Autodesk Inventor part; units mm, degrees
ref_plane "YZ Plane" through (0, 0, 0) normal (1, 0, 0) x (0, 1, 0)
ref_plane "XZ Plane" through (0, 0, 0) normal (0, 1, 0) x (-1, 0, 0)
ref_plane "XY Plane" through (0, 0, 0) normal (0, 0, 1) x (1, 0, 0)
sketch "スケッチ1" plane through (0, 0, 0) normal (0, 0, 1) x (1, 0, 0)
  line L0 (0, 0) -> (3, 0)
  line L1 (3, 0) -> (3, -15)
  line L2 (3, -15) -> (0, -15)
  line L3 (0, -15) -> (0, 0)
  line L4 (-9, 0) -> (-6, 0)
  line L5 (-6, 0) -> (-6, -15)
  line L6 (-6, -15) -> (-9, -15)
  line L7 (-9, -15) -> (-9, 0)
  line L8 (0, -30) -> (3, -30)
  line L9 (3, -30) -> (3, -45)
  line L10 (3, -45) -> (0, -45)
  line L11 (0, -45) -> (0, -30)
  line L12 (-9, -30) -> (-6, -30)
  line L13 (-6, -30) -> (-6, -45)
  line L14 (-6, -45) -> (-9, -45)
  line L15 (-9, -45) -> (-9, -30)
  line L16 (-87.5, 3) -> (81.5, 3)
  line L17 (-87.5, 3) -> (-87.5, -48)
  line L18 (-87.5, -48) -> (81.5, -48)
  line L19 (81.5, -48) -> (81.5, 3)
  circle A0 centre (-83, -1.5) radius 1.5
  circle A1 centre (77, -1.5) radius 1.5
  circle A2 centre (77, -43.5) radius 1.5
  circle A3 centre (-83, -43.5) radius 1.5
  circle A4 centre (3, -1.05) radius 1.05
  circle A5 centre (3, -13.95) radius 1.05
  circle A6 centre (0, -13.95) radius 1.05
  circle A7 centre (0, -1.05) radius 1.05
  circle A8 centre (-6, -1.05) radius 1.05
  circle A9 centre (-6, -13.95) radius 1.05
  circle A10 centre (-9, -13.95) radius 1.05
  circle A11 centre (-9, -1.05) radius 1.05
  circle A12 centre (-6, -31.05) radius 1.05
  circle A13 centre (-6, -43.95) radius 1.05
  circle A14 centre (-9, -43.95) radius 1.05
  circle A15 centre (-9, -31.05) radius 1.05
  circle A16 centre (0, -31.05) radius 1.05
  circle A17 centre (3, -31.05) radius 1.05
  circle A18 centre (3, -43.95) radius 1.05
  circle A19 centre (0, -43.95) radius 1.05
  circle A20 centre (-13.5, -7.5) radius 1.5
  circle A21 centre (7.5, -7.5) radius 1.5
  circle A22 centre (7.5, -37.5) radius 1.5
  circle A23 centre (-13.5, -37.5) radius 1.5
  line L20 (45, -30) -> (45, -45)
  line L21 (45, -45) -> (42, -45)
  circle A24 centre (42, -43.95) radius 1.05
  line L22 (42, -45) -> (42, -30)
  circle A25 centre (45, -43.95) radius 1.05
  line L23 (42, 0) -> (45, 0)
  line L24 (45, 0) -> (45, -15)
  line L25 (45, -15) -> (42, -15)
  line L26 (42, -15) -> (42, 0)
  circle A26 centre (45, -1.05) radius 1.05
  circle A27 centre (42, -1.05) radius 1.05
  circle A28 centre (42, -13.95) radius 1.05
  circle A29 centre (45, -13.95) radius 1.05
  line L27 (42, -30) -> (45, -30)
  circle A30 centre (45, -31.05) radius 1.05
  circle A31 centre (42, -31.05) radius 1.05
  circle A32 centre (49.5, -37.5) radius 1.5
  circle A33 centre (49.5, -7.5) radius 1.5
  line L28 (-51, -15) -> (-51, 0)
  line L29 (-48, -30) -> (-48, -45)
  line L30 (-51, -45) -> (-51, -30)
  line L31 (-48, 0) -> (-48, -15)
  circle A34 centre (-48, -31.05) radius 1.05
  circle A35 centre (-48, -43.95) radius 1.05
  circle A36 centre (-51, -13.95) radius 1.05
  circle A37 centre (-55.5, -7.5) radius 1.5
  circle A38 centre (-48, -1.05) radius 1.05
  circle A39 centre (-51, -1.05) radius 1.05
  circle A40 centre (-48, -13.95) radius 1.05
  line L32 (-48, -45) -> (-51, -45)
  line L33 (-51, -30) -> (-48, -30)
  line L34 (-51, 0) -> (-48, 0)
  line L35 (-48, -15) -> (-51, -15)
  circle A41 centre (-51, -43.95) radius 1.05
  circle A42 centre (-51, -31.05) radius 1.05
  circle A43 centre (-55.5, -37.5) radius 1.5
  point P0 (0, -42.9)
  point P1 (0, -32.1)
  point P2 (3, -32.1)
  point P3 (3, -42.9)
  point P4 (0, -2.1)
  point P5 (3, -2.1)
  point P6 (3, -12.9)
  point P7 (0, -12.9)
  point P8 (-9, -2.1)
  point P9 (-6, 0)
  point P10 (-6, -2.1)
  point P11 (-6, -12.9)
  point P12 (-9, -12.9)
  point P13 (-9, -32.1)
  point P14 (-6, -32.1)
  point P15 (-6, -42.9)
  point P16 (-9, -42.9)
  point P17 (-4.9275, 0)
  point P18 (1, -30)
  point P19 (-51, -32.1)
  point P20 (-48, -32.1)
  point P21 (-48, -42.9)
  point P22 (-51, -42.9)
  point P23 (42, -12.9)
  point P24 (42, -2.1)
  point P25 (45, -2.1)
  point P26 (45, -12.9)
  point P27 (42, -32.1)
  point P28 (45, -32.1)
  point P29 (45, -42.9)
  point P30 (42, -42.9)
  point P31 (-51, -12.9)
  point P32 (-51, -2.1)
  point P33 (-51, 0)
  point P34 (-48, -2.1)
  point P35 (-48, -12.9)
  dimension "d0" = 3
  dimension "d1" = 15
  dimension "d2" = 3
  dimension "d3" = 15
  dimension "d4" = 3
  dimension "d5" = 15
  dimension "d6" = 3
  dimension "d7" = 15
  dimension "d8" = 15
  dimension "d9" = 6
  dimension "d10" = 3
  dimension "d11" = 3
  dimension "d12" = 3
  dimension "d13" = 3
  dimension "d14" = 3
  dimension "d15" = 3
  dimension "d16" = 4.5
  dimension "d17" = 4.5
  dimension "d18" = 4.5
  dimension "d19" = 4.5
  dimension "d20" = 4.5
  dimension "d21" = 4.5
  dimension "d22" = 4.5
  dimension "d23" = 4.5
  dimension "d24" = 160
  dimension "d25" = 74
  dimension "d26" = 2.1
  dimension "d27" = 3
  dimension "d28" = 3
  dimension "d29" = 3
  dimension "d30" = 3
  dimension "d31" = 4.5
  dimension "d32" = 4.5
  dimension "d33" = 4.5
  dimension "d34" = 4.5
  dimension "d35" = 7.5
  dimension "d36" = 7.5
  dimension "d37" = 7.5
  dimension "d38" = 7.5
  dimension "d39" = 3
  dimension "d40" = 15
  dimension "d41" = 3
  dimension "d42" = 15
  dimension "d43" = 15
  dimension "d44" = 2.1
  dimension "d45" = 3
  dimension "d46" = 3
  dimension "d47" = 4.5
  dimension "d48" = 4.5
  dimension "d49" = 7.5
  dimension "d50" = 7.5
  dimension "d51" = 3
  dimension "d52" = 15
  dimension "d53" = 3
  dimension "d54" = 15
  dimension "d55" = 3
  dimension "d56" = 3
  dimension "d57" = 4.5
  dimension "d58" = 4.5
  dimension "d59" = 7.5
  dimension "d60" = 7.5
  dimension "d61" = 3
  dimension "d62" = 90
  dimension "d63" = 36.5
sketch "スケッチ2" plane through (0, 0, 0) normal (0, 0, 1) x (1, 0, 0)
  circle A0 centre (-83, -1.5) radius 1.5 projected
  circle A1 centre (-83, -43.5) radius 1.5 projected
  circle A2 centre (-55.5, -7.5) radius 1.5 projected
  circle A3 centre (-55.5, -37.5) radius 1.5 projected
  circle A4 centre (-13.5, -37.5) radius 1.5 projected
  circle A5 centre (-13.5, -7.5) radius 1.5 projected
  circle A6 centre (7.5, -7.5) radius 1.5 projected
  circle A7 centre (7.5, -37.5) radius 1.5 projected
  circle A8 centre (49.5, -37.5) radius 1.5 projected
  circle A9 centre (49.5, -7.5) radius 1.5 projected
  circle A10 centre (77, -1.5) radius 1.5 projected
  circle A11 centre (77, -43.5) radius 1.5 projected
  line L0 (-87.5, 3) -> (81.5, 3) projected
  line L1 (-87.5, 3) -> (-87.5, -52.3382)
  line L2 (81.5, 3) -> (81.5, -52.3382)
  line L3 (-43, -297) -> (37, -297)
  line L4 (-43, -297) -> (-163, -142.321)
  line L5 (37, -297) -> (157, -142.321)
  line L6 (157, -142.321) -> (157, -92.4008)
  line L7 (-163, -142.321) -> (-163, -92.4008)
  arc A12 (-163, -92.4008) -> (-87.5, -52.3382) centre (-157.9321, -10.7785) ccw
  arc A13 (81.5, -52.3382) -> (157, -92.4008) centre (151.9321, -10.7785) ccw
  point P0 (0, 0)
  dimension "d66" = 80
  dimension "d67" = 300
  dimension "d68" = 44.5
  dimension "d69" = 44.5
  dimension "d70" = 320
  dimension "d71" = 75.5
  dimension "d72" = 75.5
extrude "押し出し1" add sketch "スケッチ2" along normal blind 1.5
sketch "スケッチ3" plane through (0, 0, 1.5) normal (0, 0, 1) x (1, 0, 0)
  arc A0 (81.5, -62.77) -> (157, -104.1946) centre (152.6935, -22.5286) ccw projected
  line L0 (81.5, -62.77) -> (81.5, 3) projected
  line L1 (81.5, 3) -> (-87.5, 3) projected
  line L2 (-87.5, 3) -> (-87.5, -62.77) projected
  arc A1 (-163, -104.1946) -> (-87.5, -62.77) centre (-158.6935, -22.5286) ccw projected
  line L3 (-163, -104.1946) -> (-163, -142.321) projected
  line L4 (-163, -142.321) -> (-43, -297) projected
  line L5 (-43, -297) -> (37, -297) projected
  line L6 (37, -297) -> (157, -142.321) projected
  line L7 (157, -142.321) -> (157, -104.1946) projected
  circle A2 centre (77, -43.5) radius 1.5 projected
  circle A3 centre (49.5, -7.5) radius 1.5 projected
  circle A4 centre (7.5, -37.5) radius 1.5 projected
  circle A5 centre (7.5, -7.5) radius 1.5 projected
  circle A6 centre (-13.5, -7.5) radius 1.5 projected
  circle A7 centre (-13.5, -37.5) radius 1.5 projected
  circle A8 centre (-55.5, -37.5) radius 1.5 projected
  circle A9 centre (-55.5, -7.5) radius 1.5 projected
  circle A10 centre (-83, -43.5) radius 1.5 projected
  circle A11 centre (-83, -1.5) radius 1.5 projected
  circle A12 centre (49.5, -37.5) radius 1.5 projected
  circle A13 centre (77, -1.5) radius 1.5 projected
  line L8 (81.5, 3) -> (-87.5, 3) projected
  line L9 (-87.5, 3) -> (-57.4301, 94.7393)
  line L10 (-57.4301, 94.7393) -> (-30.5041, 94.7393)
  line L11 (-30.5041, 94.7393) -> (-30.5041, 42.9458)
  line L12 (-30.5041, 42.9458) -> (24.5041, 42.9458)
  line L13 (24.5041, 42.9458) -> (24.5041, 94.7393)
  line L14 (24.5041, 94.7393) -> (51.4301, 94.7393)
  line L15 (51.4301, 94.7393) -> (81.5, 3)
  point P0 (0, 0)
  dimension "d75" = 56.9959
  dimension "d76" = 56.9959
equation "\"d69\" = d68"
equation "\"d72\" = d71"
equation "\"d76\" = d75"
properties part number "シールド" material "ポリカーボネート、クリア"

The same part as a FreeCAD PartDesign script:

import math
import FreeCAD as App
import Part
import Sketcher
Q = App.Units.Quantity

doc = App.newDocument("Part")
body = doc.addObject("PartDesign::Body", "Body")

sketch1 = body.newObject("Sketcher::SketchObject", "Sketch")
sketch1.AttachmentSupport = (doc.getObject("XY_Plane"), [""])
sketch1.MapMode = "FlatFace"
sketch1.addGeometry([
    Part.LineSegment(App.Vector(81.5, 3, 0), App.Vector(-87.5, 3, 0)),
    Part.LineSegment(App.Vector(-87.5, 3, 0), App.Vector(-87.5, -52.3, 0)),
    Part.ArcOfCircle(Part.Circle(App.Vector(-157.9, -10.8, 0), App.Vector(0, 0, 1), 81.8), math.radians(-94), math.radians(-31)),
    Part.LineSegment(App.Vector(-163, -92.4, 0), App.Vector(-163, -142.3, 0)),
    Part.LineSegment(App.Vector(-163, -142.3, 0), App.Vector(-43, -297, 0)),
    Part.LineSegment(App.Vector(-43, -297, 0), App.Vector(37, -297, 0)),
    Part.LineSegment(App.Vector(37, -297, 0), App.Vector(157, -142.3, 0)),
    Part.LineSegment(App.Vector(157, -142.3, 0), App.Vector(157, -92.4, 0)),
    Part.ArcOfCircle(Part.Circle(App.Vector(151.9, -10.8, 0), App.Vector(0, 0, 1), 81.8), math.radians(-149), math.radians(-86)),
    Part.LineSegment(App.Vector(81.5, -52.3, 0), App.Vector(81.5, 3, 0)),
    Part.Circle(App.Vector(-83, -43.5, 0), App.Vector(0, 0, 1), 1.5),
    Part.Circle(App.Vector(-55.5, -37.5, 0), App.Vector(0, 0, 1), 1.5),
    Part.Circle(App.Vector(-13.5, -37.5, 0), App.Vector(0, 0, 1), 1.5),
    Part.Circle(App.Vector(-83, -1.5, 0), App.Vector(0, 0, 1), 1.5),
    Part.Circle(App.Vector(-55.5, -7.5, 0), App.Vector(0, 0, 1), 1.5),
    Part.Circle(App.Vector(-13.5, -7.5, 0), App.Vector(0, 0, 1), 1.5),
    Part.Circle(App.Vector(7.5, -37.5, 0), App.Vector(0, 0, 1), 1.5),
    Part.Circle(App.Vector(49.5, -37.5, 0), App.Vector(0, 0, 1), 1.5),
    Part.Circle(App.Vector(7.5, -7.5, 0), App.Vector(0, 0, 1), 1.5),
    Part.Circle(App.Vector(49.5, -7.5, 0), App.Vector(0, 0, 1), 1.5),
    Part.Circle(App.Vector(77, -43.5, 0), App.Vector(0, 0, 1), 1.5),
    Part.Circle(App.Vector(77, -1.5, 0), App.Vector(0, 0, 1), 1.5),
], False)
sketch1.addConstraint([
    Sketcher.Constraint("Coincident", 0, 2, 1, 1),
    Sketcher.Constraint("Coincident", 1, 2, 2, 2),
    Sketcher.Constraint("Coincident", 2, 1, 3, 1),
    Sketcher.Constraint("Coincident", 3, 2, 4, 1),
    Sketcher.Constraint("Coincident", 4, 2, 5, 1),
    Sketcher.Constraint("Coincident", 5, 2, 6, 1),
    Sketcher.Constraint("Coincident", 6, 2, 7, 1),
    Sketcher.Constraint("Coincident", 7, 2, 8, 2),
    Sketcher.Constraint("Coincident", 8, 1, 9, 1),
    Sketcher.Constraint("Coincident", 9, 2, 0, 1),
    Sketcher.Constraint("Horizontal", 0),
    Sketcher.Constraint("Vertical", 1),
    Sketcher.Constraint("Vertical", 3),
    Sketcher.Constraint("Horizontal", 5),
    Sketcher.Constraint("Vertical", 7),
    Sketcher.Constraint("Vertical", 9),
    Sketcher.Constraint("Equal", 2, 8),
    Sketcher.Constraint("Equal", 10, 11),
    Sketcher.Constraint("Equal", 11, 12),
    Sketcher.Constraint("Equal", 12, 13),
    Sketcher.Constraint("Equal", 13, 14),
    Sketcher.Constraint("Equal", 14, 15),
    Sketcher.Constraint("Equal", 15, 16),
    Sketcher.Constraint("Equal", 16, 17),
    Sketcher.Constraint("Equal", 17, 18),
    Sketcher.Constraint("Equal", 18, 19),
    Sketcher.Constraint("Equal", 19, 20),
    Sketcher.Constraint("Equal", 20, 21),
    Sketcher.Constraint("Horizontal", 2, 3, 8, 3),
    Sketcher.Constraint("Horizontal", 11, 3, 12, 3),
    Sketcher.Constraint("Horizontal", 14, 3, 15, 3),
    Sketcher.Constraint("Horizontal", 12, 3, 16, 3),
    Sketcher.Constraint("Horizontal", 16, 3, 17, 3),
    Sketcher.Constraint("Horizontal", 15, 3, 18, 3),
    Sketcher.Constraint("Horizontal", 18, 3, 19, 3),
    Sketcher.Constraint("Horizontal", 10, 3, 20, 3),
    Sketcher.Constraint("Horizontal", 13, 3, 21, 3),
    Sketcher.Constraint("Horizontal", 3, 2, 6, 2),
    Sketcher.Constraint("Horizontal", 2, 1, 7, 2),
    Sketcher.Constraint("Horizontal", 1, 2, 8, 1),
    Sketcher.Constraint("Vertical", 10, 3, 13, 3),
    Sketcher.Constraint("Vertical", 11, 3, 14, 3),
    Sketcher.Constraint("Vertical", 12, 3, 15, 3),
    Sketcher.Constraint("Vertical", 16, 3, 18, 3),
    Sketcher.Constraint("Vertical", 17, 3, 19, 3),
    Sketcher.Constraint("Vertical", 20, 3, 21, 3),
    Sketcher.Constraint("Equal", 4, 6),
    Sketcher.Constraint("DistanceX", 5, 1, 5, 2, Q("80 mm")),
    Sketcher.Constraint("Diameter", 10, Q("3 mm")),
    Sketcher.Constraint("DistanceX", 2, 1, 10, 3, Q("80 mm")),
    Sketcher.Constraint("DistanceX", 20, 3, 6, 2, Q("80 mm")),
    Sketcher.Constraint("DistanceX", 2, 1, 1, 2, Q("75.5 mm")),
    Sketcher.Constraint("DistanceX", 1, 2, 4, 2, Q("44.5 mm")),
    Sketcher.Constraint("DistanceX", 10, 3, -1, 1, Q("83 mm")),
    Sketcher.Constraint("DistanceY", -1, 1, 0, 2, Q("3 mm")),
    Sketcher.Constraint("DistanceY", 4, 2, -1, 1, Q("297 mm")),
    Sketcher.Constraint("DistanceY", 10, 3, 11, 3, Q("6 mm")),
    Sketcher.Constraint("DistanceX", 11, 3, 12, 3, Q("42 mm")),
    Sketcher.Constraint("DistanceY", 10, 3, 13, 3, Q("42 mm")),
    Sketcher.Constraint("DistanceY", 14, 3, 13, 3, Q("6 mm")),
    Sketcher.Constraint("DistanceX", 12, 3, 16, 3, Q("21 mm")),
    Sketcher.Constraint("DistanceX", 16, 3, 17, 3, Q("42 mm")),
    Sketcher.Constraint("DistanceX", 0, 2, 14, 3, Q("32 mm")),
    Sketcher.Constraint("DistanceY", 10, 3, -1, 1, Q("43.5 mm")),
    Sketcher.Constraint("Radius", 2, Q("81.7795 mm")),
    Sketcher.Constraint("DistanceY", 1, 2, 1, 1, Q("55.3382 mm")),
    Sketcher.Constraint("DistanceY", 3, 2, 3, 1, Q("49.9202 mm")),
    Sketcher.Constraint("DistanceX", 2, 3, -1, 1, Q("157.932 mm")),
])
pad1 = body.newObject("PartDesign::Pad", "Pad")
pad1.Profile = sketch1
pad1.Length = 1.5

doc.recompute()
